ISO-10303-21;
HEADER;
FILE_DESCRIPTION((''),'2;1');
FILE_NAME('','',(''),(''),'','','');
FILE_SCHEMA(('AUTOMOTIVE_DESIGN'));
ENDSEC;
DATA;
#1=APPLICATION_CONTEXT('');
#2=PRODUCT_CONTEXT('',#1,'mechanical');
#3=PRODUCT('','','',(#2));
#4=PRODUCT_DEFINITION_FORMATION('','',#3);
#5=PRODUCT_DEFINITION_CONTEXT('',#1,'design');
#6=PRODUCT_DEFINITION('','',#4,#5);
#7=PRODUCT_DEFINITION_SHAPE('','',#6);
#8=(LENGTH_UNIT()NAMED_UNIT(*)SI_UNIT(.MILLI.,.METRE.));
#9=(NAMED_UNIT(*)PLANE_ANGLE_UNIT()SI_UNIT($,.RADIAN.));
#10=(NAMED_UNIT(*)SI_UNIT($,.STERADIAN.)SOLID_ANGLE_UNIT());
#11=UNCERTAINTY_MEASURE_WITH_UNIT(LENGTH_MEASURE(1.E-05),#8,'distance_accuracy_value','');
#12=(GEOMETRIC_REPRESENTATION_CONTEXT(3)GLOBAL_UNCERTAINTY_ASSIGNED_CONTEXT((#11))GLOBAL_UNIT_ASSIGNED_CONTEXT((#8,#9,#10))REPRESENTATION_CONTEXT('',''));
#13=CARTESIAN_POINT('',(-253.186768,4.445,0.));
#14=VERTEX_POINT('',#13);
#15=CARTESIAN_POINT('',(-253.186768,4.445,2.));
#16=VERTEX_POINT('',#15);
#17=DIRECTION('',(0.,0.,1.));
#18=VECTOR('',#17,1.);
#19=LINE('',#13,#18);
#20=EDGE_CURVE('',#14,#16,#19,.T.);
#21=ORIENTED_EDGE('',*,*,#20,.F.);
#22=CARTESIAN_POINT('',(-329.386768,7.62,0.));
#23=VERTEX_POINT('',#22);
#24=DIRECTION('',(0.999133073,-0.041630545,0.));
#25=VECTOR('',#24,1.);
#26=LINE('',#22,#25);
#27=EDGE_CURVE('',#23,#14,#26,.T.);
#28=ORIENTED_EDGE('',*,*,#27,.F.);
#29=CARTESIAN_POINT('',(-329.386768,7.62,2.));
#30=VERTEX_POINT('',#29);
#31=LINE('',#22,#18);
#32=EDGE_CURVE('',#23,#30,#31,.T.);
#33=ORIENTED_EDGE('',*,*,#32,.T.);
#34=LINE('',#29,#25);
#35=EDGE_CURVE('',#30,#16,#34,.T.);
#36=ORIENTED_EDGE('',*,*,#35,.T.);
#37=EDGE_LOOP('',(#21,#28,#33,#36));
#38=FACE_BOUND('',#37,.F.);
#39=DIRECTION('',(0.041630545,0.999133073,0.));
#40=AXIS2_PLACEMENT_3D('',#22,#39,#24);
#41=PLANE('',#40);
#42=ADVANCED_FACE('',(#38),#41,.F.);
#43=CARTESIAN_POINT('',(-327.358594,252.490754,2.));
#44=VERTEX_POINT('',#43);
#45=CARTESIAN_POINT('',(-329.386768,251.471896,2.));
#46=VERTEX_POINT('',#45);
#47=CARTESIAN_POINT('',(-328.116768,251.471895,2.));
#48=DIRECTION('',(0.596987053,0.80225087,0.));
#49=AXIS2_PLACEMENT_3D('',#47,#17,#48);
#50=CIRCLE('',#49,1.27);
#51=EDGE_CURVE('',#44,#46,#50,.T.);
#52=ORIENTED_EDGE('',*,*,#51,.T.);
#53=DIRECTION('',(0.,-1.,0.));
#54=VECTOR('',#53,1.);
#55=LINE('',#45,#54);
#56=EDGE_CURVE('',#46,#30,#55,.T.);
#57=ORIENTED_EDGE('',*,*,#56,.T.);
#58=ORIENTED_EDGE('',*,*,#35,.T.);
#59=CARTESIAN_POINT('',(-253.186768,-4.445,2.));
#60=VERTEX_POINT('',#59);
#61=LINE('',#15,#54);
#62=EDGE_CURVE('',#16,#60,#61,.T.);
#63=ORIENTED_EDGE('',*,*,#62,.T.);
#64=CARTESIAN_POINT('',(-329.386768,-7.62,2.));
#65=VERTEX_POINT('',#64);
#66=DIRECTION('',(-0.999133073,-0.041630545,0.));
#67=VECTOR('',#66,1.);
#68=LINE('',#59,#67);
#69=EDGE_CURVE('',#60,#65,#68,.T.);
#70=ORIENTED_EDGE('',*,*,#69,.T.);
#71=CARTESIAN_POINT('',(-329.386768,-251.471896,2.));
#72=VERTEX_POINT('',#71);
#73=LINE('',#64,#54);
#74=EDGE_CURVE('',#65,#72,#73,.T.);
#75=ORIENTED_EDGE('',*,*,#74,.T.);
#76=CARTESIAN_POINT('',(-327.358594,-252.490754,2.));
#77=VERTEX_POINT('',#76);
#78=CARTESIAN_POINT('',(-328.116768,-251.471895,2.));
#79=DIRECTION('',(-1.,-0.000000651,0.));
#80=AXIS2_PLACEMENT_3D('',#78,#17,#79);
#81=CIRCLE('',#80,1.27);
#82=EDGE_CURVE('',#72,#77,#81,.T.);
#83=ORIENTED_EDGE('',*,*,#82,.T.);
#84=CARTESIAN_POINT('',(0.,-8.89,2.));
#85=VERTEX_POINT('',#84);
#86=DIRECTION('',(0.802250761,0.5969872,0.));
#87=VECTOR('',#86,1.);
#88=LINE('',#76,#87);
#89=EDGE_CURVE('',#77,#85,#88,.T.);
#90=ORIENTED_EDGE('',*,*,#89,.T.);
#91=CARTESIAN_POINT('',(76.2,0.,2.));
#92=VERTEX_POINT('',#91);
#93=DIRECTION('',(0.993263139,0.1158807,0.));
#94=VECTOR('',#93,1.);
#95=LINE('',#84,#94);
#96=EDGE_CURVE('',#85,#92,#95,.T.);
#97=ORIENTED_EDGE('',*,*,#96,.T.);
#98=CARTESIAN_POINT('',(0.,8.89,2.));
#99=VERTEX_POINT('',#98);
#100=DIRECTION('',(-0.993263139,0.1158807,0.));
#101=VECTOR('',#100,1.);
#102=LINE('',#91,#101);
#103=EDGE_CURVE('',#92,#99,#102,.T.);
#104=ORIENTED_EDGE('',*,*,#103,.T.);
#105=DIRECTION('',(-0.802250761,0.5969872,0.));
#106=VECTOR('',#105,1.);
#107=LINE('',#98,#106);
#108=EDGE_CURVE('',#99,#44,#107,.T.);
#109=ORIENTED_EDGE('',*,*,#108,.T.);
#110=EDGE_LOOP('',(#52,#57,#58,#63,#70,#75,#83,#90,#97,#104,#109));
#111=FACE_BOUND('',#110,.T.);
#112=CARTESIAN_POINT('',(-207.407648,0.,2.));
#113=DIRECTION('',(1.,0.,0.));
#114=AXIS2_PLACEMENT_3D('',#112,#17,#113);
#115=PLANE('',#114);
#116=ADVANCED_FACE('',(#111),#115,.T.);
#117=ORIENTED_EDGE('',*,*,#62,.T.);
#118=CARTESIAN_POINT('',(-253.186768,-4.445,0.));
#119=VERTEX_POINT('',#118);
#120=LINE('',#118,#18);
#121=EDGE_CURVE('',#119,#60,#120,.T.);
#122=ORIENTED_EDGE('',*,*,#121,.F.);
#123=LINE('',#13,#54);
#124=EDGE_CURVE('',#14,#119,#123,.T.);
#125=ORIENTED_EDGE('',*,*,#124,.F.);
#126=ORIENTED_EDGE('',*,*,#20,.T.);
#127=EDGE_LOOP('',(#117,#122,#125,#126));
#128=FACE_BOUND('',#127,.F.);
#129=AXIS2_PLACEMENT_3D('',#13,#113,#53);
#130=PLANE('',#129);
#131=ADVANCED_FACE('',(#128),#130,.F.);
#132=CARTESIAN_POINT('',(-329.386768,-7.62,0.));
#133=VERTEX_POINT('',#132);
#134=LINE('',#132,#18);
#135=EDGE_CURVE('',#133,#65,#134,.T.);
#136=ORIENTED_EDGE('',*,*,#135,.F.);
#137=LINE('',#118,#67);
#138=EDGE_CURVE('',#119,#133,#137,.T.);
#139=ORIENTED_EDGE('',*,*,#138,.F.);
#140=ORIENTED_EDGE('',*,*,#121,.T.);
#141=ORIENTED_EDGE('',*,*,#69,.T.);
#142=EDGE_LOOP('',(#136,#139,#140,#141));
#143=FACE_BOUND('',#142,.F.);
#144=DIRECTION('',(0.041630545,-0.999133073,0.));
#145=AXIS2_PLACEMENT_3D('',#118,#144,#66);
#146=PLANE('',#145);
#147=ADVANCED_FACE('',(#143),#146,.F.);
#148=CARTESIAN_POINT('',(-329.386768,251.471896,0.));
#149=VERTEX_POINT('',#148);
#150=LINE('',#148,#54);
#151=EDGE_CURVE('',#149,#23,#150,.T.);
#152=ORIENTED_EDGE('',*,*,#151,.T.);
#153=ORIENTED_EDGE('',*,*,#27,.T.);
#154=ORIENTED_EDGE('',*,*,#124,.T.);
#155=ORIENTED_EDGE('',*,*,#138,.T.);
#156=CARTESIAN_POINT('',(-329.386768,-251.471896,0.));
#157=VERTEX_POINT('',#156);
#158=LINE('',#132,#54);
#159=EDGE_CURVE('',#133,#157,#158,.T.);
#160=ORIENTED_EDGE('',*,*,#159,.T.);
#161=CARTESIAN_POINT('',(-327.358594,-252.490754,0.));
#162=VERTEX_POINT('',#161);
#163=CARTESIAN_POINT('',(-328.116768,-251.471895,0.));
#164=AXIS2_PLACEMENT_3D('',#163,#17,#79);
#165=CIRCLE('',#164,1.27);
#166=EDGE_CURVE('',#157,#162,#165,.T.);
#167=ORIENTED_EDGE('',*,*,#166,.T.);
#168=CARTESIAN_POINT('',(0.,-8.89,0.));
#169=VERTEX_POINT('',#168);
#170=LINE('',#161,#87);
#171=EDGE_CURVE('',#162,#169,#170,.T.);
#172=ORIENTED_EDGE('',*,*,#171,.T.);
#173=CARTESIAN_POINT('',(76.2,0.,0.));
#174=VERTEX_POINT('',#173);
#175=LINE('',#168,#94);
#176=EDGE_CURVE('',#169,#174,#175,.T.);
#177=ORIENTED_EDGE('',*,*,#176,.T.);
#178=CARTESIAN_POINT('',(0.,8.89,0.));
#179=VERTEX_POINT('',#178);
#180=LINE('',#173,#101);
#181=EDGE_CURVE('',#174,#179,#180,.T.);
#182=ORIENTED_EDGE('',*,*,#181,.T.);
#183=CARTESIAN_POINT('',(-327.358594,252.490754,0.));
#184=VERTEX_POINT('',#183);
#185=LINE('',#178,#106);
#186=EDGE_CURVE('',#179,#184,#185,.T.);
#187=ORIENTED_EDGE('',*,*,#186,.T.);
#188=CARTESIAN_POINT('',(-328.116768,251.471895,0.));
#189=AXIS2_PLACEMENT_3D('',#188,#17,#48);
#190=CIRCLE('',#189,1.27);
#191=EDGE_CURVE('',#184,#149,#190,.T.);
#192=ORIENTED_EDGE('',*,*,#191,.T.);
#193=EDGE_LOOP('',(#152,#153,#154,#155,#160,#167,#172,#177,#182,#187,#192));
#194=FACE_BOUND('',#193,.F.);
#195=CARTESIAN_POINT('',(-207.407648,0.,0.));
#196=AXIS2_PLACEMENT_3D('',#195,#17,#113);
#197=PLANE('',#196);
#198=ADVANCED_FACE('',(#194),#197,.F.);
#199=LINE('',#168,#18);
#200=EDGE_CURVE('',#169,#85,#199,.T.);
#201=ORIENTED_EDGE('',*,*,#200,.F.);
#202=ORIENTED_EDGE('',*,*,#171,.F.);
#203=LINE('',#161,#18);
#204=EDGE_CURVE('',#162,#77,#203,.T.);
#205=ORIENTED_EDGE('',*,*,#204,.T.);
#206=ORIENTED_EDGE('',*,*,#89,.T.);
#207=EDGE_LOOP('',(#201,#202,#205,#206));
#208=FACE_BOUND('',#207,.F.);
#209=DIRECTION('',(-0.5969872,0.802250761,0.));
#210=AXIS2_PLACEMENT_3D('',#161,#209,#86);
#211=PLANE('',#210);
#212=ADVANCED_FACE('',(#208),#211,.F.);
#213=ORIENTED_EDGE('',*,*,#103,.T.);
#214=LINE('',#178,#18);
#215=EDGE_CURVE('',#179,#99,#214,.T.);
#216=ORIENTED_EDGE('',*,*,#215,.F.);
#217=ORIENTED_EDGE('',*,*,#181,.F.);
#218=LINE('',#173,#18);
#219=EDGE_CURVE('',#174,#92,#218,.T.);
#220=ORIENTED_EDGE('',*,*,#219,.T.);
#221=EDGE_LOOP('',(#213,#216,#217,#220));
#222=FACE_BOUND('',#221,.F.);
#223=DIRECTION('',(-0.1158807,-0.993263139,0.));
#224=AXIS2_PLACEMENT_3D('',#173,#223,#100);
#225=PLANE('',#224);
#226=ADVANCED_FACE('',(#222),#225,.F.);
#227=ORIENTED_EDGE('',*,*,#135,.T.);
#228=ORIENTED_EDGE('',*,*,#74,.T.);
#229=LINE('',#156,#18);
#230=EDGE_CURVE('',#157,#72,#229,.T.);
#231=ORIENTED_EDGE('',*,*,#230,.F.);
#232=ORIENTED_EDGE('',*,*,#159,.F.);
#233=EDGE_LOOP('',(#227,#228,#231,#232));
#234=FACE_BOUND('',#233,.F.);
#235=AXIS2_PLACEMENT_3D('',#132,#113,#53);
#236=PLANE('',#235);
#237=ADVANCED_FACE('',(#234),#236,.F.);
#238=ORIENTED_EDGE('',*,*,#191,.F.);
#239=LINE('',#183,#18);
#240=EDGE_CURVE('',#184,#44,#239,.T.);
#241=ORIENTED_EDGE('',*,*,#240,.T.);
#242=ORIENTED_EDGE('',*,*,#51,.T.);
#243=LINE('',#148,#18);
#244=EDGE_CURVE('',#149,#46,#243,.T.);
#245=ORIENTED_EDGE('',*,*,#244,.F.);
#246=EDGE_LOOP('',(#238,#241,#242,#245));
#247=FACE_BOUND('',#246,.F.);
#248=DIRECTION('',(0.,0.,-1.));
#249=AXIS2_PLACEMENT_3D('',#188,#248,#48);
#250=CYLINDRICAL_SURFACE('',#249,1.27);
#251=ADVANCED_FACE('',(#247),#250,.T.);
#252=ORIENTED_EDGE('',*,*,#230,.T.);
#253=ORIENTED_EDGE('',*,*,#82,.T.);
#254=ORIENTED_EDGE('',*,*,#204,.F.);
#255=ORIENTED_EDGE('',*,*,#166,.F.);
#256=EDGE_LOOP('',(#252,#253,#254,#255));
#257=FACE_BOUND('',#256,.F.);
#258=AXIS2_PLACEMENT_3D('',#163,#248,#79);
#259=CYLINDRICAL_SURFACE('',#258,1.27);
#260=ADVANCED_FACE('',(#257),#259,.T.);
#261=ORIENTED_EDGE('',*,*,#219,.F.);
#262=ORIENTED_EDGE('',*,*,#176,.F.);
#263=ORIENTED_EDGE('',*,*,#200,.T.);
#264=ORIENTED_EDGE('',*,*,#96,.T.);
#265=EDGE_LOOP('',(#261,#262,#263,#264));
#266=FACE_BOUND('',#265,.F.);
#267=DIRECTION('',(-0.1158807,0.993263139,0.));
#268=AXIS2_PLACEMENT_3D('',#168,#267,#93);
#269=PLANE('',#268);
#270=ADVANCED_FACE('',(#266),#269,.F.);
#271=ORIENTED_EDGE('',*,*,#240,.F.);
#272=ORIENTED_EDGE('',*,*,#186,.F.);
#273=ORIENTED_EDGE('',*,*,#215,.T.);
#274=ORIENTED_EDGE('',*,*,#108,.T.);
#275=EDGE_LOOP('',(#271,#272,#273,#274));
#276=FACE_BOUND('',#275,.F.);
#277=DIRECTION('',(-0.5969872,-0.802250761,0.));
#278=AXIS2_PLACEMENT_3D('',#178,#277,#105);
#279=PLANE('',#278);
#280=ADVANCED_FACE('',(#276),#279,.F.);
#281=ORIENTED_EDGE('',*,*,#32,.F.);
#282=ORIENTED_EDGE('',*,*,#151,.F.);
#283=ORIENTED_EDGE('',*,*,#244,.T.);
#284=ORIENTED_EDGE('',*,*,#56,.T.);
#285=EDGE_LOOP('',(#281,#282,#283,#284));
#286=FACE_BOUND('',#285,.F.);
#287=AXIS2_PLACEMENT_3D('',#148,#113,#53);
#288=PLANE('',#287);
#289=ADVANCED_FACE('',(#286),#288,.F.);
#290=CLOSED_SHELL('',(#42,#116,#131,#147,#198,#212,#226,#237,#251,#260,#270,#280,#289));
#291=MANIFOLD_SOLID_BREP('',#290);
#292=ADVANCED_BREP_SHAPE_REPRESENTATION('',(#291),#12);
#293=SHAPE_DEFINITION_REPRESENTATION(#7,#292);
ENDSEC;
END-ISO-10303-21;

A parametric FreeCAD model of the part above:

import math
import FreeCAD as App
import Part
import Sketcher
Q = App.Units.Quantity

doc = App.newDocument("Part")
params = doc.addObject("Spreadsheet::Sheet", "Params")
for row, (alias, value) in enumerate([
    ("sketch1_radius", "0.05 in"),
    ("sketch1_height", "0.35 in"),
    ("pad1_length", "2 mm"),
], start=1):
    params.set(f"A{row}", alias)
    params.set(f"B{row}", "=" + value)
    params.setAlias(f"B{row}", alias)

body = doc.addObject("PartDesign::Body", "Body")

sketch1 = doc.addObject("Sketcher::SketchObject", "Sketch")
body.addObject(sketch1)
sketch1.AttachmentSupport = (doc.XY_Plane, [""])
sketch1.MapMode = "FlatFace"
sketch1.addGeometry([
    Part.LineSegment(App.Vector(76.2, 0, 0), App.Vector(0, 8.9, 0)),
    Part.LineSegment(App.Vector(0, 8.9, 0), App.Vector(-327.4, 252.5, 0)),
    Part.ArcOfCircle(Part.Circle(App.Vector(-328.1, 251.5, 0), App.Vector(0, 0, 1), 1.3), math.radians(53), math.radians(180)),
    Part.LineSegment(App.Vector(-329.4, 251.5, 0), App.Vector(-329.4, 7.6, 0)),
    Part.LineSegment(App.Vector(-329.4, 7.6, 0), App.Vector(-253.2, 4.4, 0)),
    Part.LineSegment(App.Vector(-253.2, 4.4, 0), App.Vector(-253.2, -4.4, 0)),
    Part.LineSegment(App.Vector(-253.2, -4.4, 0), App.Vector(-329.4, -7.6, 0)),
    Part.LineSegment(App.Vector(-329.4, -7.6, 0), App.Vector(-329.4, -251.5, 0)),
    Part.ArcOfCircle(Part.Circle(App.Vector(-328.1, -251.5, 0), App.Vector(0, 0, 1), 1.3), math.radians(-180), math.radians(-53)),
    Part.LineSegment(App.Vector(-327.4, -252.5, 0), App.Vector(0, -8.9, 0)),
    Part.LineSegment(App.Vector(0, -8.9, 0), App.Vector(76.2, 0, 0)),
], False)
sketch1.addConstraint([
    Sketcher.Constraint("Coincident", 0, 2, 1, 1),
    Sketcher.Constraint("Tangent", 1, 2, 2, 1),
    Sketcher.Constraint("Tangent", 2, 2, 3, 1),
    Sketcher.Constraint("Coincident", 3, 2, 4, 1),
    Sketcher.Constraint("Coincident", 4, 2, 5, 1),
    Sketcher.Constraint("Coincident", 5, 2, 6, 1),
    Sketcher.Constraint("Coincident", 6, 2, 7, 1),
    Sketcher.Constraint("Tangent", 7, 2, 8, 1),
    Sketcher.Constraint("Tangent", 8, 2, 9, 1),
    Sketcher.Constraint("Coincident", 9, 2, 10, 1),
    Sketcher.Constraint("Coincident", 10, 2, 0, 1),
    Sketcher.Constraint("Vertical", 3),
    Sketcher.Constraint("Vertical", 5),
    Sketcher.Constraint("Vertical", 7),
    Sketcher.Constraint("Equal", 2, 8),
    Sketcher.Constraint("Symmetric", 0, 2, 9, 2, -1, 1),
    Sketcher.Constraint("Symmetric", 2, 3, 8, 3, -1),
    Sketcher.Constraint("PointOnObject", 0, 2, -2),
    Sketcher.Constraint("PointOnObject", 10, 2, -1),
    Sketcher.Constraint("Equal", 3, 7),
    Sketcher.Constraint("Equal", 4, 6),
    Sketcher.Constraint("Radius", 2, Q("0.05 in")),
    Sketcher.Constraint("DistanceX", -1, 1, 10, 2, Q("3 in")),
    Sketcher.Constraint("DistanceX", 3, 2, 4, 2, Q("3 in")),
    Sketcher.Constraint("DistanceY", 5, 2, 5, 1, Q("0.35 in")),
    Sketcher.Constraint("DistanceY", -1, 1, 3, 2, Q("0.3 in")),
    Sketcher.Constraint("DistanceY", 9, 2, 0, 2, Q("0.7 in")),
    Sketcher.Constraint("DistanceY", 3, 2, 3, 1, Q("243.851896 mm")),
    Sketcher.Constraint("DistanceX", 3, 2, -1, 1, Q("329.386768 mm")),
])
sketch1.setExpression("Constraints[21]", "Params.sketch1_radius")
sketch1.setExpression("Constraints[24]", "Params.sketch1_height")
pad1 = doc.addObject("PartDesign::Pad", "Pad")
body.addObject(pad1)
pad1.Profile = sketch1
pad1.setExpression("Length", "Params.pad1_length")

doc.recompute()
